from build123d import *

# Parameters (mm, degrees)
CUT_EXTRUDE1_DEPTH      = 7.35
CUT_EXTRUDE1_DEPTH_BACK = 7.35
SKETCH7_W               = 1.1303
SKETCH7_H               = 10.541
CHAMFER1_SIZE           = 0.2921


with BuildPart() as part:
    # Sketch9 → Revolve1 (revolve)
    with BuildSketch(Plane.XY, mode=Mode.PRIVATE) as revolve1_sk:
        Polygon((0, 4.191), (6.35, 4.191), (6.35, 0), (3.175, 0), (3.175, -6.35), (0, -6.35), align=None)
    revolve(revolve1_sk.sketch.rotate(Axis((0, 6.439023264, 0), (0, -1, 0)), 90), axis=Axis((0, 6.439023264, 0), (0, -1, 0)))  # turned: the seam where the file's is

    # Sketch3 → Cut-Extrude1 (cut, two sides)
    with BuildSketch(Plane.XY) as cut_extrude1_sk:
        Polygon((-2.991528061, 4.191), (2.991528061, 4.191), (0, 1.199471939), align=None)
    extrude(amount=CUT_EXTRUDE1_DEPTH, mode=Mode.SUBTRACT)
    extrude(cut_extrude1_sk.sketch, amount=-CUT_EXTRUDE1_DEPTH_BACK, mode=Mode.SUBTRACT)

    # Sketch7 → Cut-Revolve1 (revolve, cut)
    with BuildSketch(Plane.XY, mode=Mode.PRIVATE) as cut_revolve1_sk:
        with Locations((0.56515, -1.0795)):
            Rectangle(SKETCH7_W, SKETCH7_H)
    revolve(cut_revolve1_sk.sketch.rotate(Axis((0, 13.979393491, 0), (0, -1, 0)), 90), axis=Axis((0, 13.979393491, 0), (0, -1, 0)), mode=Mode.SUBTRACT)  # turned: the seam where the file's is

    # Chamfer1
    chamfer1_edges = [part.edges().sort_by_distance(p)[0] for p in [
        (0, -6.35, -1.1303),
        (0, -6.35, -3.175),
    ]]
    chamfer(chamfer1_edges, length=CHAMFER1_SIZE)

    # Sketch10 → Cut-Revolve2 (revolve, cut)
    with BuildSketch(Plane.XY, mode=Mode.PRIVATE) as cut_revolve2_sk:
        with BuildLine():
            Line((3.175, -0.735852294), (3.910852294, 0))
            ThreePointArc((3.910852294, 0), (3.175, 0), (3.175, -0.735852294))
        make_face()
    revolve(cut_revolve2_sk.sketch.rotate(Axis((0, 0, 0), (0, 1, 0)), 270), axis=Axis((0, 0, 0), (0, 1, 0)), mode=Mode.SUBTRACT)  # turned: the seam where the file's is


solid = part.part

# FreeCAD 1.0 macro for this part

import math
import FreeCAD as App
import Part
import Sketcher
Q = App.Units.Quantity


def edges_at(feature, points):
    """Names of the edges that pass closest to the given points."""
    edges = feature.Shape.Edges
    near = lambda p: min(range(len(edges)), key=lambda i: edges[i].distToShape(Part.Vertex(*p))[0])
    return sorted({f"Edge{near(p) + 1}" for p in points})


def add_polygon(sketch, points):
    """Adds a closed chain of lines whose ends are joined by coincident constraints."""
    first, n = sketch.GeometryCount, len(points)
    for a, b in zip(points, points[1:] + points[:1]):
        sketch.addGeometry(Part.LineSegment(App.Vector(*a, 0), App.Vector(*b, 0)), False)
    for i in range(n):
        sketch.addConstraint(Sketcher.Constraint("Coincident", first + i, 2, first + (i + 1) % n, 1))

doc = App.newDocument("Part")
body = doc.addObject("PartDesign::Body", "Body")

sketch1 = doc.addObject("Sketcher::SketchObject", "Sketch")
body.addObject(sketch1)
sketch1.AttachmentSupport = (doc.XY_Plane, [""])
sketch1.MapMode = "FlatFace"
add_polygon(sketch1, [(6.3, 4.2), (0, 4.2), (0, -6.3), (3.2, -6.3), (3.2, 0), (6.3, 0)])
sketch1.addConstraint([
    Sketcher.Constraint("Horizontal", 0),
    Sketcher.Constraint("Vertical", 1),
    Sketcher.Constraint("Horizontal", 2),
    Sketcher.Constraint("Vertical", 3),
    Sketcher.Constraint("Horizontal", 4),
    Sketcher.Constraint("Vertical", 5),
    Sketcher.Constraint("PointOnObject", 0, 2, -2),
    Sketcher.Constraint("PointOnObject", 3, 2, -1),
    Sketcher.Constraint("Equal", 2, 4),
    Sketcher.Constraint("Equal", 0, 3),
    Sketcher.Constraint("DistanceX", 0, 2, 0, 1, Q("0.25 in")),
    Sketcher.Constraint("DistanceY", 1, 2, 1, 1, Q("0.415 in")),
])
revolution = doc.addObject("PartDesign::Revolution", "Revolution")
body.addObject(revolution)
revolution.Profile = sketch1
revolution.ReferenceAxis = (sketch1, ["V_Axis"])
revolution.Angle = 360

sketch2 = doc.addObject("Sketcher::SketchObject", "Sketch001")
body.addObject(sketch2)
sketch2.AttachmentSupport = (doc.XY_Plane, [""])
sketch2.MapMode = "FlatFace"
add_polygon(sketch2, [(3, 4.2), (-3, 4.2), (0, 1.2)])
sketch2.addConstraint([
    Sketcher.Constraint("Horizontal", 0),
    Sketcher.Constraint("PointOnObject", 1, 2, -2),
    Sketcher.Constraint("Perpendicular", 1, 2),
    Sketcher.Constraint("Equal", 1, 2),
    Sketcher.Constraint("DistanceY", -1, 1, 0, 2, Q("0.165 in")),
    Sketcher.Constraint("Distance", 1, Q("4.23066 mm")),
])
pocket1 = doc.addObject("PartDesign::Pocket", "Pocket")
body.addObject(pocket1)
pocket1.Profile = sketch2
pocket1.Type = "ThroughAll"
pocket1.Midplane = True

sketch3 = doc.addObject("Sketcher::SketchObject", "Sketch002")
body.addObject(sketch3)
sketch3.AttachmentSupport = (doc.XY_Plane, [""])
sketch3.MapMode = "FlatFace"
add_polygon(sketch3, [(0, 4.2), (0, -6.3), (1.1, -6.3), (1.1, 4.2)])
sketch3.addConstraint([
    Sketcher.Constraint("Vertical", 0),
    Sketcher.Constraint("Horizontal", 1),
    Sketcher.Constraint("Vertical", 2),
    Sketcher.Constraint("Horizontal", 3),
    Sketcher.Constraint("PointOnObject", 0, 2, -2),
    Sketcher.Constraint("DistanceY", 0, 2, 0, 1, Q("0.415 in")),
    Sketcher.Constraint("DistanceY", 0, 2, -1, 1, Q("0.25 in")),
    Sketcher.Constraint("DistanceX", 1, 1, 1, 2, Q("0.0445 in")),
])
groove = doc.addObject("PartDesign::Groove", "Groove")
body.addObject(groove)
groove.Profile = sketch3
groove.ReferenceAxis = (sketch3, ["V_Axis"])
groove.Angle = 360
doc.recompute()

chamfer = doc.addObject("PartDesign::Chamfer", "Chamfer")
body.addObject(chamfer)
chamfer.Base = (groove, edges_at(groove, [(0, -6.35, -1.13), (0, -6.35, -3.175)]))
chamfer.Size = Q("0.0115 in")

sketch4 = doc.addObject("Sketcher::SketchObject", "Sketch003")
body.addObject(sketch4)
sketch4.AttachmentSupport = (doc.XY_Plane, [""])
sketch4.MapMode = "FlatFace"
sketch4.addGeometry([
    Part.LineSegment(App.Vector(3.2, -0.7, 0), App.Vector(3.9, 0, 0)),
    Part.ArcOfCircle(Part.Circle(App.Vector(3.5, -0.4, 0), App.Vector(0, 0, 1), 0.5), math.radians(45), math.radians(225)),
], False)
sketch4.addConstraint([
    Sketcher.Constraint("Coincident", 0, 1, 1, 2),
    Sketcher.Constraint("Coincident", 1, 1, 0, 2),
    Sketcher.Constraint("PointOnObject", 1, 1, -1),
    Sketcher.Constraint("Angle", 0, Q("45 deg")),
    Sketcher.Constraint("DistanceX", -1, 1, 0, 1, Q("0.125 in")),
    Sketcher.Constraint("Radius", 1, Q("0.520326 mm")),
    Sketcher.Constraint("DistanceX", -1, 1, 1, 3, Q("3.542926 mm")),
])
groove2 = doc.addObject("PartDesign::Groove", "Groove001")
body.addObject(groove2)
groove2.Profile = sketch4
groove2.ReferenceAxis = (sketch4, ["V_Axis"])
groove2.Angle = 360

doc.recompute()
